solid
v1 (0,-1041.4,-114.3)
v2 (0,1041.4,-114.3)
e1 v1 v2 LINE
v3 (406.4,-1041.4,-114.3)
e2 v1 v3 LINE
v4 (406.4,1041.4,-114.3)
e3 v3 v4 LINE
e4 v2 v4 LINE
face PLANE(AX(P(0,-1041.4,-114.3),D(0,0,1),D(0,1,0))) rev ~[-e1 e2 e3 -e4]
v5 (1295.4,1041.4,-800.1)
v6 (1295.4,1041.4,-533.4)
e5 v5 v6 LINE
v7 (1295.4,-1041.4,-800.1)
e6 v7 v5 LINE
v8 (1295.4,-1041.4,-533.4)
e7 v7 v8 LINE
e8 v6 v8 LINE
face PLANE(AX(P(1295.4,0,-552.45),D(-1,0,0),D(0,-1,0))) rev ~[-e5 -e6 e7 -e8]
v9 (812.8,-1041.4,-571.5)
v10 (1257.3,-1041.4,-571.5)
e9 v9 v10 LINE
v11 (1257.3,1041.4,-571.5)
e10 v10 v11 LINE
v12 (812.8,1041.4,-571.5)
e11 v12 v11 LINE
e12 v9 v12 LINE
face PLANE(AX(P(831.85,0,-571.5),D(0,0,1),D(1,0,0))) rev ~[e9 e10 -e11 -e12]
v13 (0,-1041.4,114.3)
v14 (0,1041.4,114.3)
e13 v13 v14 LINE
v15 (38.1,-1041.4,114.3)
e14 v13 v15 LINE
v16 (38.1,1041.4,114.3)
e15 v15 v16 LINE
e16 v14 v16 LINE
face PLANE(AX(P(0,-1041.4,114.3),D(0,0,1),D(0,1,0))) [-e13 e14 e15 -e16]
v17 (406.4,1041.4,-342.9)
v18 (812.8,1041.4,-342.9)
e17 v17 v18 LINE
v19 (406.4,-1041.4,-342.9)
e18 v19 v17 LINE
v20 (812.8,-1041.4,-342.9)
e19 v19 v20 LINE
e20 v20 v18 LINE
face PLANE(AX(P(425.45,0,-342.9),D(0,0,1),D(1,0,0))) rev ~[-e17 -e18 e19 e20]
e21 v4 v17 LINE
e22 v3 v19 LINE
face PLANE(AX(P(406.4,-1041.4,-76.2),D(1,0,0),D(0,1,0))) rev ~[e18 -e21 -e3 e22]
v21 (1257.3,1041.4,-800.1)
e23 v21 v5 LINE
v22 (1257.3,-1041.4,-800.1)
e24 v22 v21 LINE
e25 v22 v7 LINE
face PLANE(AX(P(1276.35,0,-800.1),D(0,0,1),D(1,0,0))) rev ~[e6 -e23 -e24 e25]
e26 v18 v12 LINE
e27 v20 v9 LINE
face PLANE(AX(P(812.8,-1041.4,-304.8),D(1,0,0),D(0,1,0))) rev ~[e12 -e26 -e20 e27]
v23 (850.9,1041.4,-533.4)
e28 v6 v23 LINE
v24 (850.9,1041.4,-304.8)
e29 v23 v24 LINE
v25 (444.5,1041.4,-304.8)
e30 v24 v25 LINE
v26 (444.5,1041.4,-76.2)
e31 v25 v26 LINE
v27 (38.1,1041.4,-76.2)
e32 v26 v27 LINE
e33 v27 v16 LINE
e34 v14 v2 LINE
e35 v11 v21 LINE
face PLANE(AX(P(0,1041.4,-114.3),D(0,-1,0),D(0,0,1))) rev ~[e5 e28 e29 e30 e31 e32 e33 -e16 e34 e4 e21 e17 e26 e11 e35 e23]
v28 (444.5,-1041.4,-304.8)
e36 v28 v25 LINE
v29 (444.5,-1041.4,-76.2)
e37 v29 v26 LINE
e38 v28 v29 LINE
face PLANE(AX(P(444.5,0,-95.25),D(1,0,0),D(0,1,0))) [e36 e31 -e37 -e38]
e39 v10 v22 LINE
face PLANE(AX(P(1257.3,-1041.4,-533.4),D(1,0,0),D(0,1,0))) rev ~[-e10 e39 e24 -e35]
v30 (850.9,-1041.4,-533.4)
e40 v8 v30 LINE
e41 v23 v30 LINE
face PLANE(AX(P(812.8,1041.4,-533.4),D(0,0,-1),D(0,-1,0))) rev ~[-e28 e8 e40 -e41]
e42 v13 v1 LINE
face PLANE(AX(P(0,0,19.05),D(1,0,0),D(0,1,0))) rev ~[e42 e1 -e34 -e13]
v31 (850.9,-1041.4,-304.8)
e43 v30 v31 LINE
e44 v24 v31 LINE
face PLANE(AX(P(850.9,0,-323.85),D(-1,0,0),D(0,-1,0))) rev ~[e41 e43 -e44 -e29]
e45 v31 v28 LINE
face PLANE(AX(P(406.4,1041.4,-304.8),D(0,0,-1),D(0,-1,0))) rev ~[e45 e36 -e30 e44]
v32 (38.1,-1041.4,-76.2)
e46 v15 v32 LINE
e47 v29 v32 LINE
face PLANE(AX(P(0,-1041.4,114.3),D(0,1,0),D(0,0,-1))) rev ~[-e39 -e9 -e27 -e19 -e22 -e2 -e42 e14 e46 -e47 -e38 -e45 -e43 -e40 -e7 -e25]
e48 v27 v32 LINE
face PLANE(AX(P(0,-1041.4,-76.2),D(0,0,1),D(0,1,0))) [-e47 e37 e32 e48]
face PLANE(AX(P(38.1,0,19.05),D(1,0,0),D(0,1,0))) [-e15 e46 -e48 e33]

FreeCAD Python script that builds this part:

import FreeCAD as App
import Part
import Sketcher

V = App.Vector
Q = App.Units.Quantity

doc = App.newDocument("Part")
body = doc.addObject("PartDesign::Body", "Body")

# Sketch on YZ plane
sketch1 = body.newObject("Sketcher::SketchObject", "Sketch")
sketch1.AttachmentSupport = (doc.getObject("YZ_Plane"), [""])
sketch1.MapMode = "FlatFace"
sketch1.addGeometry([
    Part.LineSegment(V(-1041, 114, 0), V(-1041, -114, 0)),
    Part.LineSegment(V(-1041, -114, 0), V(1041, -114, 0)),
    Part.LineSegment(V(1041, -114, 0), V(1041, 114, 0)),
    Part.LineSegment(V(1041, 114, 0), V(-1041, 114, 0)),
], False)
sketch1.addConstraint([
    Sketcher.Constraint("Coincident", 0, 2, 1, 1),
    Sketcher.Constraint("Coincident", 1, 2, 2, 1),
    Sketcher.Constraint("Coincident", 2, 2, 3, 1),
    Sketcher.Constraint("Coincident", 3, 2, 0, 1),
    Sketcher.Constraint("Vertical", 0),
    Sketcher.Constraint("Horizontal", 1),
    Sketcher.Constraint("Vertical", 2),
    Sketcher.Constraint("Horizontal", 3),
    Sketcher.Constraint("Symmetric", 0, 2, 2, 2, -1, 1),
    Sketcher.Constraint("DistanceX", 1, 1, 1, 2, Q("82 in")),
    Sketcher.Constraint("DistanceY", 0, 2, 0, 1, Q("9 in")),
])
pad1 = body.newObject("PartDesign::Pad", "Pad")
pad1.Profile = sketch1
pad1.Length = Q("1.5 in")

# Sketch on YZ plane
sketch2 = body.newObject("Sketcher::SketchObject", "Sketch001")
sketch2.AttachmentSupport = (doc.getObject("YZ_Plane"), [""])
sketch2.MapMode = "FlatFace"
sketch2.addGeometry([
    Part.LineSegment(V(-1041, -76, 0), V(-1041, -114, 0)),
    Part.LineSegment(V(-1041, -114, 0), V(1041, -114, 0)),
    Part.LineSegment(V(1041, -114, 0), V(1041, -76, 0)),
    Part.LineSegment(V(1041, -76, 0), V(-1041, -76, 0)),
], False)
sketch2.addConstraint([
    Sketcher.Constraint("Coincident", 0, 2, 1, 1),
    Sketcher.Constraint("Coincident", 1, 2, 2, 1),
    Sketcher.Constraint("Coincident", 2, 2, 3, 1),
    Sketcher.Constraint("Coincident", 3, 2, 0, 1),
    Sketcher.Constraint("Vertical", 0),
    Sketcher.Constraint("Horizontal", 1),
    Sketcher.Constraint("Vertical", 2),
    Sketcher.Constraint("Horizontal", 3),
    Sketcher.Constraint("DistanceX", 1, 1, 1, 2, Q("82 in")),
    Sketcher.Constraint("DistanceY", 0, 2, 0, 1, Q("1.5 in")),
    Sketcher.Constraint("DistanceX", 0, 2, -1, 1, Q("41 in")),
    Sketcher.Constraint("DistanceY", 2, 2, -1, 1, Q("3 in")),
])
pad2 = body.newObject("PartDesign::Pad", "Pad001")
pad2.Profile = sketch2
pad2.Length = Q("17.5 in")

# Sketch on XY plane
sketch3 = body.newObject("Sketcher::SketchObject", "Sketch002")
sketch3.AttachmentSupport = (doc.getObject("XY_Plane"), [""])
sketch3.MapMode = "FlatFace"
sketch3.AttachmentOffset = App.Placement(V(0, 0, -3 * 25.4), App.Rotation())
sketch3.addGeometry([
    Part.LineSegment(V(406, 1041, 0), V(406, -1041, 0)),
    Part.LineSegment(V(406, -1041, 0), V(444, -1041, 0)),
    Part.LineSegment(V(444, -1041, 0), V(444, 1041, 0)),
    Part.LineSegment(V(444, 1041, 0), V(406, 1041, 0)),
], False)
sketch3.addConstraint([
    Sketcher.Constraint("Coincident", 0, 2, 1, 1),
    Sketcher.Constraint("Coincident", 1, 2, 2, 1),
    Sketcher.Constraint("Coincident", 2, 2, 3, 1),
    Sketcher.Constraint("Coincident", 3, 2, 0, 1),
    Sketcher.Constraint("Vertical", 0),
    Sketcher.Constraint("Horizontal", 1),
    Sketcher.Constraint("Vertical", 2),
    Sketcher.Constraint("Horizontal", 3),
    Sketcher.Constraint("DistanceY", 0, 2, 0, 1, Q("82 in")),
    Sketcher.Constraint("DistanceX", 1, 1, 1, 2, Q("1.5 in")),
    Sketcher.Constraint("DistanceX", -1, 1, 0, 2, Q("16 in")),
    Sketcher.Constraint("DistanceY", 0, 2, -1, 1, Q("41 in")),
])
pad3 = body.newObject("PartDesign::Pad", "Pad002")
pad3.Profile = sketch3
pad3.Length = Q("10.5 in")
pad3.Reversed = True

# Sketch on YZ plane
sketch4 = body.newObject("Sketcher::SketchObject", "Sketch003")
sketch4.AttachmentSupport = (doc.getObject("YZ_Plane"), [""])
sketch4.MapMode = "FlatFace"
sketch4.AttachmentOffset = App.Placement(V(0, 0, 16 * 25.4), App.Rotation())
sketch4.addGeometry([
    Part.LineSegment(V(1041, -305, 0), V(1041, -343, 0)),
    Part.LineSegment(V(1041, -343, 0), V(-1041, -343, 0)),
    Part.LineSegment(V(-1041, -343, 0), V(-1041, -305, 0)),
    Part.LineSegment(V(-1041, -305, 0), V(1041, -305, 0)),
], False)
sketch4.addConstraint([
    Sketcher.Constraint("Coincident", 0, 2, 1, 1),
    Sketcher.Constraint("Coincident", 1, 2, 2, 1),
    Sketcher.Constraint("Coincident", 2, 2, 3, 1),
    Sketcher.Constraint("Coincident", 3, 2, 0, 1),
    Sketcher.Constraint("Vertical", 0),
    Sketcher.Constraint("Horizontal", 1),
    Sketcher.Constraint("Vertical", 2),
    Sketcher.Constraint("Horizontal", 3),
    Sketcher.Constraint("DistanceX", 1, 2, 1, 1, Q("82 in")),
    Sketcher.Constraint("DistanceY", 0, 2, 0, 1, Q("1.5 in")),
    Sketcher.Constraint("DistanceX", -1, 1, 0, 2, Q("41 in")),
    Sketcher.Constraint("DistanceY", 2, 2, -1, 1, Q("12 in")),
])
pad4 = body.newObject("PartDesign::Pad", "Pad003")
pad4.Profile = sketch4
pad4.Length = Q("17.5 in")

# Sketch on XY plane
sketch5 = body.newObject("Sketcher::SketchObject", "Sketch004")
sketch5.AttachmentSupport = (doc.getObject("XY_Plane"), [""])
sketch5.MapMode = "FlatFace"
sketch5.AttachmentOffset = App.Placement(V(0, 0, -12 * 25.4), App.Rotation())
sketch5.addGeometry([
    Part.LineSegment(V(813, 1041, 0), V(813, -1041, 0)),
    Part.LineSegment(V(813, -1041, 0), V(851, -1041, 0)),
    Part.LineSegment(V(851, -1041, 0), V(851, 1041, 0)),
    Part.LineSegment(V(851, 1041, 0), V(813, 1041, 0)),
], False)
sketch5.addConstraint([
    Sketcher.Constraint("Coincident", 0, 2, 1, 1),
    Sketcher.Constraint("Coincident", 1, 2, 2, 1),
    Sketcher.Constraint("Coincident", 2, 2, 3, 1),
    Sketcher.Constraint("Coincident", 3, 2, 0, 1),
    Sketcher.Constraint("Vertical", 0),
    Sketcher.Constraint("Horizontal", 1),
    Sketcher.Constraint("Vertical", 2),
    Sketcher.Constraint("Horizontal", 3),
    Sketcher.Constraint("DistanceY", 0, 2, 0, 1, Q("82 in")),
    Sketcher.Constraint("DistanceX", 1, 1, 1, 2, Q("1.5 in")),
    Sketcher.Constraint("DistanceX", -1, 1, 0, 2, Q("32 in")),
    Sketcher.Constraint("DistanceY", 0, 2, -1, 1, Q("41 in")),
])
pad5 = body.newObject("PartDesign::Pad", "Pad004")
pad5.Profile = sketch5
pad5.Length = Q("10.5 in")
pad5.Reversed = True

# Sketch on YZ plane
sketch6 = body.newObject("Sketcher::SketchObject", "Sketch005")
sketch6.AttachmentSupport = (doc.getObject("YZ_Plane"), [""])
sketch6.MapMode = "FlatFace"
sketch6.AttachmentOffset = App.Placement(V(0, 0, 32 * 25.4), App.Rotation())
sketch6.addGeometry([
    Part.LineSegment(V(1041, -533, 0), V(1041, -572, 0)),
    Part.LineSegment(V(1041, -572, 0), V(-1041, -572, 0)),
    Part.LineSegment(V(-1041, -572, 0), V(-1041, -533, 0)),
    Part.LineSegment(V(-1041, -533, 0), V(1041, -533, 0)),
], False)
sketch6.addConstraint([
    Sketcher.Constraint("Coincident", 0, 2, 1, 1),
    Sketcher.Constraint("Coincident", 1, 2, 2, 1),
    Sketcher.Constraint("Coincident", 2, 2, 3, 1),
    Sketcher.Constraint("Coincident", 3, 2, 0, 1),
    Sketcher.Constraint("Vertical", 0),
    Sketcher.Constraint("Horizontal", 1),
    Sketcher.Constraint("Vertical", 2),
    Sketcher.Constraint("Horizontal", 3),
    Sketcher.Constraint("DistanceX", 1, 2, 1, 1, Q("82 in")),
    Sketcher.Constraint("DistanceY", 0, 2, 0, 1, Q("1.5 in")),
    Sketcher.Constraint("DistanceX", -1, 1, 0, 2, Q("41 in")),
    Sketcher.Constraint("DistanceY", 2, 2, -1, 1, Q("21 in")),
])
pad6 = body.newObject("PartDesign::Pad", "Pad005")
pad6.Profile = sketch6
pad6.Length = Q("19 in")

# Sketch on XY plane
sketch7 = body.newObject("Sketcher::SketchObject", "Sketch006")
sketch7.AttachmentSupport = (doc.getObject("XY_Plane"), [""])
sketch7.MapMode = "FlatFace"
sketch7.AttachmentOffset = App.Placement(V(0, 0, -21 * 25.4), App.Rotation())
sketch7.addGeometry([
    Part.LineSegment(V(1257, 1041, 0), V(1257, -1041, 0)),
    Part.LineSegment(V(1257, -1041, 0), V(1295, -1041, 0)),
    Part.LineSegment(V(1295, -1041, 0), V(1295, 1041, 0)),
    Part.LineSegment(V(1295, 1041, 0), V(1257, 1041, 0)),
], False)
sketch7.addConstraint([
    Sketcher.Constraint("Coincident", 0, 2, 1, 1),
    Sketcher.Constraint("Coincident", 1, 2, 2, 1),
    Sketcher.Constraint("Coincident", 2, 2, 3, 1),
    Sketcher.Constraint("Coincident", 3, 2, 0, 1),
    Sketcher.Constraint("Vertical", 0),
    Sketcher.Constraint("Horizontal", 1),
    Sketcher.Constraint("Vertical", 2),
    Sketcher.Constraint("Horizontal", 3),
    Sketcher.Constraint("DistanceY", 0, 2, 0, 1, Q("82 in")),
    Sketcher.Constraint("DistanceX", 1, 1, 1, 2, Q("1.5 in")),
    Sketcher.Constraint("DistanceY", 0, 2, -1, 1, Q("41 in")),
    Sketcher.Constraint("DistanceX", -1, 1, 1, 2, Q("51 in")),
])
pad7 = body.newObject("PartDesign::Pad", "Pad006")
pad7.Profile = sketch7
pad7.Length = Q("10.5 in")
pad7.Reversed = True

doc.recompute()
